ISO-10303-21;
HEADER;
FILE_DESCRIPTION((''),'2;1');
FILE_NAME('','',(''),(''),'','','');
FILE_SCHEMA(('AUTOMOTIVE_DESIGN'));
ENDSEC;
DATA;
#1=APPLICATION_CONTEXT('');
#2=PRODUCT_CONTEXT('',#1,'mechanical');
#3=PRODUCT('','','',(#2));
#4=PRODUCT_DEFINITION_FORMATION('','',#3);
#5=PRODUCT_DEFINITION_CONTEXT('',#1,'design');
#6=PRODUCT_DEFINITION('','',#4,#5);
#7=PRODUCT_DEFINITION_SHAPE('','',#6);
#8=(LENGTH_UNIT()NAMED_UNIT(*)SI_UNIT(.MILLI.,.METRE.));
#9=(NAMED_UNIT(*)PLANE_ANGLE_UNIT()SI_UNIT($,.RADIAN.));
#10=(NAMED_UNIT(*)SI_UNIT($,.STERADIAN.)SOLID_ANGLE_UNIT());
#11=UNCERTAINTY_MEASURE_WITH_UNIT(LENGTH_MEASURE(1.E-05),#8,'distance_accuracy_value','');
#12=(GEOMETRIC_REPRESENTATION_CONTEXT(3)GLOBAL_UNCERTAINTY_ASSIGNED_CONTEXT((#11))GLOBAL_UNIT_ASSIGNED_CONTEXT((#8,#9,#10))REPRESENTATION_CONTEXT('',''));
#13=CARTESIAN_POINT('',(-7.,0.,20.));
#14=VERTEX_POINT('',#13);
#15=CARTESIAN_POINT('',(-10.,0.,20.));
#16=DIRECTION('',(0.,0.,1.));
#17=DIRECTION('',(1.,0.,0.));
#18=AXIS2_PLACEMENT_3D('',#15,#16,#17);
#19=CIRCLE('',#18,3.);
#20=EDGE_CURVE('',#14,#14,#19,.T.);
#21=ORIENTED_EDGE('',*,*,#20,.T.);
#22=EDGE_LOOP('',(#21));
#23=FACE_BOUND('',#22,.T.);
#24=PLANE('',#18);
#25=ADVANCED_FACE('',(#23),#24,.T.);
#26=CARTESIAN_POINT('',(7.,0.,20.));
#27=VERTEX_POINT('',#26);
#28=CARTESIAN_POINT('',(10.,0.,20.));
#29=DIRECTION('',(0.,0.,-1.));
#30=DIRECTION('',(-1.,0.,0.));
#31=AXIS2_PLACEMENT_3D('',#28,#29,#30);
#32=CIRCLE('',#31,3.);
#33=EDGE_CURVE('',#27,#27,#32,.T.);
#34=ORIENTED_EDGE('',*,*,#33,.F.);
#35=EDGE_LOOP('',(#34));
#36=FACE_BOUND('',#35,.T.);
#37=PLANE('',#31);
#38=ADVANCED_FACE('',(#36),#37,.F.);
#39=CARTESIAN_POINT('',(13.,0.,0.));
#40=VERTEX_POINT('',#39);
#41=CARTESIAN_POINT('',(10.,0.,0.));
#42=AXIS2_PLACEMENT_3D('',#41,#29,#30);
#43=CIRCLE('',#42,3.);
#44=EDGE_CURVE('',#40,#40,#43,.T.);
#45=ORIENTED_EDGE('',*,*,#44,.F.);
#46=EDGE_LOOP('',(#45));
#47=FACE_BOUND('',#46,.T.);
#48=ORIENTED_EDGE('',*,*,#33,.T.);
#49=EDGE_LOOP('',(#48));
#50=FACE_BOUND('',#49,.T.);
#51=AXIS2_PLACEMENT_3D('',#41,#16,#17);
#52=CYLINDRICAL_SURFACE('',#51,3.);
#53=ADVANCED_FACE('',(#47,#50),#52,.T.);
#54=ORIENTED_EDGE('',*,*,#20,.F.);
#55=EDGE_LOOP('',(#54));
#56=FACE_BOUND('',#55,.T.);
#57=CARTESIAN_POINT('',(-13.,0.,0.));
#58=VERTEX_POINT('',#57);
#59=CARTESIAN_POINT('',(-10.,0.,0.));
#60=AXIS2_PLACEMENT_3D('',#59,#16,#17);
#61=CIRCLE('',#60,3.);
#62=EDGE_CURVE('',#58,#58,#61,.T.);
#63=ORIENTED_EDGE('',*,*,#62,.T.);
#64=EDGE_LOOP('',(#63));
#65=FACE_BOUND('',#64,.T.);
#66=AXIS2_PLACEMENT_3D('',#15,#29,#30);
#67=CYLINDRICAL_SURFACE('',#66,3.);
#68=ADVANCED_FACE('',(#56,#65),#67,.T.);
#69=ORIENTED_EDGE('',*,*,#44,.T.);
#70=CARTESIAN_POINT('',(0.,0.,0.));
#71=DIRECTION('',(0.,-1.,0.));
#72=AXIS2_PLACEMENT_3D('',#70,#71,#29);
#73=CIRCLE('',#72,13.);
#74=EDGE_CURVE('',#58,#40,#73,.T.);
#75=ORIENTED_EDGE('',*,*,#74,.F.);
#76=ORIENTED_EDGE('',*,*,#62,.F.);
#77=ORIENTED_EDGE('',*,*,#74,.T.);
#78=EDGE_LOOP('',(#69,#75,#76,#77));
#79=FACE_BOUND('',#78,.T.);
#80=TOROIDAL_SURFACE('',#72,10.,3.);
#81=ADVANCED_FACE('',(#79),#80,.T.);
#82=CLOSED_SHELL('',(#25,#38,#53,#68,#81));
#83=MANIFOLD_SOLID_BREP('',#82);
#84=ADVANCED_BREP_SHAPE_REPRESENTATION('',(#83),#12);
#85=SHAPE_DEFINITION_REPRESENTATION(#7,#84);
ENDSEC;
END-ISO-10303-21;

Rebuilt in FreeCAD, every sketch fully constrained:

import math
import FreeCAD as App
import Part
import Sketcher
from FreeCAD import Vector
Q = App.Units.Quantity

doc = App.newDocument("Part")
params = doc.addObject("Spreadsheet::Sheet", "Params")
for row, (alias, value) in enumerate([
    ("sketch1_diameter", "6 mm"),
    ("sketch2_radius", "10 mm"),
    ("sketch2_height", "20 mm"),
], start=1):
    params.set(f"A{row}", alias)
    params.set(f"B{row}", "=" + value)
    params.setAlias(f"B{row}", alias)

body = doc.addObject("PartDesign::Body", "Body")

sketch1 = doc.addObject("Sketcher::SketchObject", "Sketch")
body.addObject(sketch1)
sketch1.AttachmentSupport = (doc.XY_Plane, [""])
sketch1.MapMode = "FlatFace"
sketch1.AttachmentOffset = App.Placement(Vector(0, 0, 20), App.Rotation())
sketch1.addGeometry(Part.Circle(Vector(-10, 0, 0), Vector(0, 0, 1), 3), False)
sketch1.addConstraint(Sketcher.Constraint("PointOnObject", 0, 3, -1))
sketch1.addConstraint(Sketcher.Constraint("Diameter", 0, Q("6 mm")))
sketch1.addConstraint(Sketcher.Constraint("DistanceX", 0, 3, -1, 1, Q("10 mm")))
sketch1.setExpression("Constraints[1]", "Params.sketch1_diameter")

sketch2 = doc.addObject("Sketcher::SketchObject", "Sketch001")
body.addObject(sketch2)
sketch2.AttachmentSupport = (doc.XZ_Plane, [""])
sketch2.MapMode = "FlatFace"
sketch2.addGeometry(Part.LineSegment(Vector(-10, 20, 0), Vector(-10, 0, 0)), False)
sketch2.addGeometry(Part.ArcOfCircle(Part.Circle(Vector(0, 0, 0), Vector(0, 0, 1), 10), math.radians(180), math.radians(360)), False)
sketch2.addGeometry(Part.LineSegment(Vector(10, 0, 0), Vector(10, 20, 0)), False)
sketch2.addConstraint(Sketcher.Constraint("Tangent", 0, 2, 1, 1))
sketch2.addConstraint(Sketcher.Constraint("Tangent", 1, 2, 2, 1))
sketch2.addConstraint(Sketcher.Constraint("Vertical", 0))
sketch2.addConstraint(Sketcher.Constraint("Vertical", 2))
sketch2.addConstraint(Sketcher.Constraint("Coincident", 1, 3, -1, 1))
sketch2.addConstraint(Sketcher.Constraint("Horizontal", 0, 1, 2, 2))
sketch2.addConstraint(Sketcher.Constraint("Radius", 1, Q("10 mm")))
sketch2.addConstraint(Sketcher.Constraint("DistanceY", 0, 2, 0, 1, Q("20 mm")))
sketch2.setExpression("Constraints[6]", "Params.sketch2_radius")
sketch2.setExpression("Constraints[7]", "Params.sketch2_height")
doc.recompute()

additivepipe = doc.addObject("PartDesign::AdditivePipe", "AdditivePipe")
body.addObject(additivepipe)
additivepipe.Profile = sketch1
additivepipe.Spine = (sketch2, ["Edge1", "Edge2", "Edge3"])

doc.recompute()
